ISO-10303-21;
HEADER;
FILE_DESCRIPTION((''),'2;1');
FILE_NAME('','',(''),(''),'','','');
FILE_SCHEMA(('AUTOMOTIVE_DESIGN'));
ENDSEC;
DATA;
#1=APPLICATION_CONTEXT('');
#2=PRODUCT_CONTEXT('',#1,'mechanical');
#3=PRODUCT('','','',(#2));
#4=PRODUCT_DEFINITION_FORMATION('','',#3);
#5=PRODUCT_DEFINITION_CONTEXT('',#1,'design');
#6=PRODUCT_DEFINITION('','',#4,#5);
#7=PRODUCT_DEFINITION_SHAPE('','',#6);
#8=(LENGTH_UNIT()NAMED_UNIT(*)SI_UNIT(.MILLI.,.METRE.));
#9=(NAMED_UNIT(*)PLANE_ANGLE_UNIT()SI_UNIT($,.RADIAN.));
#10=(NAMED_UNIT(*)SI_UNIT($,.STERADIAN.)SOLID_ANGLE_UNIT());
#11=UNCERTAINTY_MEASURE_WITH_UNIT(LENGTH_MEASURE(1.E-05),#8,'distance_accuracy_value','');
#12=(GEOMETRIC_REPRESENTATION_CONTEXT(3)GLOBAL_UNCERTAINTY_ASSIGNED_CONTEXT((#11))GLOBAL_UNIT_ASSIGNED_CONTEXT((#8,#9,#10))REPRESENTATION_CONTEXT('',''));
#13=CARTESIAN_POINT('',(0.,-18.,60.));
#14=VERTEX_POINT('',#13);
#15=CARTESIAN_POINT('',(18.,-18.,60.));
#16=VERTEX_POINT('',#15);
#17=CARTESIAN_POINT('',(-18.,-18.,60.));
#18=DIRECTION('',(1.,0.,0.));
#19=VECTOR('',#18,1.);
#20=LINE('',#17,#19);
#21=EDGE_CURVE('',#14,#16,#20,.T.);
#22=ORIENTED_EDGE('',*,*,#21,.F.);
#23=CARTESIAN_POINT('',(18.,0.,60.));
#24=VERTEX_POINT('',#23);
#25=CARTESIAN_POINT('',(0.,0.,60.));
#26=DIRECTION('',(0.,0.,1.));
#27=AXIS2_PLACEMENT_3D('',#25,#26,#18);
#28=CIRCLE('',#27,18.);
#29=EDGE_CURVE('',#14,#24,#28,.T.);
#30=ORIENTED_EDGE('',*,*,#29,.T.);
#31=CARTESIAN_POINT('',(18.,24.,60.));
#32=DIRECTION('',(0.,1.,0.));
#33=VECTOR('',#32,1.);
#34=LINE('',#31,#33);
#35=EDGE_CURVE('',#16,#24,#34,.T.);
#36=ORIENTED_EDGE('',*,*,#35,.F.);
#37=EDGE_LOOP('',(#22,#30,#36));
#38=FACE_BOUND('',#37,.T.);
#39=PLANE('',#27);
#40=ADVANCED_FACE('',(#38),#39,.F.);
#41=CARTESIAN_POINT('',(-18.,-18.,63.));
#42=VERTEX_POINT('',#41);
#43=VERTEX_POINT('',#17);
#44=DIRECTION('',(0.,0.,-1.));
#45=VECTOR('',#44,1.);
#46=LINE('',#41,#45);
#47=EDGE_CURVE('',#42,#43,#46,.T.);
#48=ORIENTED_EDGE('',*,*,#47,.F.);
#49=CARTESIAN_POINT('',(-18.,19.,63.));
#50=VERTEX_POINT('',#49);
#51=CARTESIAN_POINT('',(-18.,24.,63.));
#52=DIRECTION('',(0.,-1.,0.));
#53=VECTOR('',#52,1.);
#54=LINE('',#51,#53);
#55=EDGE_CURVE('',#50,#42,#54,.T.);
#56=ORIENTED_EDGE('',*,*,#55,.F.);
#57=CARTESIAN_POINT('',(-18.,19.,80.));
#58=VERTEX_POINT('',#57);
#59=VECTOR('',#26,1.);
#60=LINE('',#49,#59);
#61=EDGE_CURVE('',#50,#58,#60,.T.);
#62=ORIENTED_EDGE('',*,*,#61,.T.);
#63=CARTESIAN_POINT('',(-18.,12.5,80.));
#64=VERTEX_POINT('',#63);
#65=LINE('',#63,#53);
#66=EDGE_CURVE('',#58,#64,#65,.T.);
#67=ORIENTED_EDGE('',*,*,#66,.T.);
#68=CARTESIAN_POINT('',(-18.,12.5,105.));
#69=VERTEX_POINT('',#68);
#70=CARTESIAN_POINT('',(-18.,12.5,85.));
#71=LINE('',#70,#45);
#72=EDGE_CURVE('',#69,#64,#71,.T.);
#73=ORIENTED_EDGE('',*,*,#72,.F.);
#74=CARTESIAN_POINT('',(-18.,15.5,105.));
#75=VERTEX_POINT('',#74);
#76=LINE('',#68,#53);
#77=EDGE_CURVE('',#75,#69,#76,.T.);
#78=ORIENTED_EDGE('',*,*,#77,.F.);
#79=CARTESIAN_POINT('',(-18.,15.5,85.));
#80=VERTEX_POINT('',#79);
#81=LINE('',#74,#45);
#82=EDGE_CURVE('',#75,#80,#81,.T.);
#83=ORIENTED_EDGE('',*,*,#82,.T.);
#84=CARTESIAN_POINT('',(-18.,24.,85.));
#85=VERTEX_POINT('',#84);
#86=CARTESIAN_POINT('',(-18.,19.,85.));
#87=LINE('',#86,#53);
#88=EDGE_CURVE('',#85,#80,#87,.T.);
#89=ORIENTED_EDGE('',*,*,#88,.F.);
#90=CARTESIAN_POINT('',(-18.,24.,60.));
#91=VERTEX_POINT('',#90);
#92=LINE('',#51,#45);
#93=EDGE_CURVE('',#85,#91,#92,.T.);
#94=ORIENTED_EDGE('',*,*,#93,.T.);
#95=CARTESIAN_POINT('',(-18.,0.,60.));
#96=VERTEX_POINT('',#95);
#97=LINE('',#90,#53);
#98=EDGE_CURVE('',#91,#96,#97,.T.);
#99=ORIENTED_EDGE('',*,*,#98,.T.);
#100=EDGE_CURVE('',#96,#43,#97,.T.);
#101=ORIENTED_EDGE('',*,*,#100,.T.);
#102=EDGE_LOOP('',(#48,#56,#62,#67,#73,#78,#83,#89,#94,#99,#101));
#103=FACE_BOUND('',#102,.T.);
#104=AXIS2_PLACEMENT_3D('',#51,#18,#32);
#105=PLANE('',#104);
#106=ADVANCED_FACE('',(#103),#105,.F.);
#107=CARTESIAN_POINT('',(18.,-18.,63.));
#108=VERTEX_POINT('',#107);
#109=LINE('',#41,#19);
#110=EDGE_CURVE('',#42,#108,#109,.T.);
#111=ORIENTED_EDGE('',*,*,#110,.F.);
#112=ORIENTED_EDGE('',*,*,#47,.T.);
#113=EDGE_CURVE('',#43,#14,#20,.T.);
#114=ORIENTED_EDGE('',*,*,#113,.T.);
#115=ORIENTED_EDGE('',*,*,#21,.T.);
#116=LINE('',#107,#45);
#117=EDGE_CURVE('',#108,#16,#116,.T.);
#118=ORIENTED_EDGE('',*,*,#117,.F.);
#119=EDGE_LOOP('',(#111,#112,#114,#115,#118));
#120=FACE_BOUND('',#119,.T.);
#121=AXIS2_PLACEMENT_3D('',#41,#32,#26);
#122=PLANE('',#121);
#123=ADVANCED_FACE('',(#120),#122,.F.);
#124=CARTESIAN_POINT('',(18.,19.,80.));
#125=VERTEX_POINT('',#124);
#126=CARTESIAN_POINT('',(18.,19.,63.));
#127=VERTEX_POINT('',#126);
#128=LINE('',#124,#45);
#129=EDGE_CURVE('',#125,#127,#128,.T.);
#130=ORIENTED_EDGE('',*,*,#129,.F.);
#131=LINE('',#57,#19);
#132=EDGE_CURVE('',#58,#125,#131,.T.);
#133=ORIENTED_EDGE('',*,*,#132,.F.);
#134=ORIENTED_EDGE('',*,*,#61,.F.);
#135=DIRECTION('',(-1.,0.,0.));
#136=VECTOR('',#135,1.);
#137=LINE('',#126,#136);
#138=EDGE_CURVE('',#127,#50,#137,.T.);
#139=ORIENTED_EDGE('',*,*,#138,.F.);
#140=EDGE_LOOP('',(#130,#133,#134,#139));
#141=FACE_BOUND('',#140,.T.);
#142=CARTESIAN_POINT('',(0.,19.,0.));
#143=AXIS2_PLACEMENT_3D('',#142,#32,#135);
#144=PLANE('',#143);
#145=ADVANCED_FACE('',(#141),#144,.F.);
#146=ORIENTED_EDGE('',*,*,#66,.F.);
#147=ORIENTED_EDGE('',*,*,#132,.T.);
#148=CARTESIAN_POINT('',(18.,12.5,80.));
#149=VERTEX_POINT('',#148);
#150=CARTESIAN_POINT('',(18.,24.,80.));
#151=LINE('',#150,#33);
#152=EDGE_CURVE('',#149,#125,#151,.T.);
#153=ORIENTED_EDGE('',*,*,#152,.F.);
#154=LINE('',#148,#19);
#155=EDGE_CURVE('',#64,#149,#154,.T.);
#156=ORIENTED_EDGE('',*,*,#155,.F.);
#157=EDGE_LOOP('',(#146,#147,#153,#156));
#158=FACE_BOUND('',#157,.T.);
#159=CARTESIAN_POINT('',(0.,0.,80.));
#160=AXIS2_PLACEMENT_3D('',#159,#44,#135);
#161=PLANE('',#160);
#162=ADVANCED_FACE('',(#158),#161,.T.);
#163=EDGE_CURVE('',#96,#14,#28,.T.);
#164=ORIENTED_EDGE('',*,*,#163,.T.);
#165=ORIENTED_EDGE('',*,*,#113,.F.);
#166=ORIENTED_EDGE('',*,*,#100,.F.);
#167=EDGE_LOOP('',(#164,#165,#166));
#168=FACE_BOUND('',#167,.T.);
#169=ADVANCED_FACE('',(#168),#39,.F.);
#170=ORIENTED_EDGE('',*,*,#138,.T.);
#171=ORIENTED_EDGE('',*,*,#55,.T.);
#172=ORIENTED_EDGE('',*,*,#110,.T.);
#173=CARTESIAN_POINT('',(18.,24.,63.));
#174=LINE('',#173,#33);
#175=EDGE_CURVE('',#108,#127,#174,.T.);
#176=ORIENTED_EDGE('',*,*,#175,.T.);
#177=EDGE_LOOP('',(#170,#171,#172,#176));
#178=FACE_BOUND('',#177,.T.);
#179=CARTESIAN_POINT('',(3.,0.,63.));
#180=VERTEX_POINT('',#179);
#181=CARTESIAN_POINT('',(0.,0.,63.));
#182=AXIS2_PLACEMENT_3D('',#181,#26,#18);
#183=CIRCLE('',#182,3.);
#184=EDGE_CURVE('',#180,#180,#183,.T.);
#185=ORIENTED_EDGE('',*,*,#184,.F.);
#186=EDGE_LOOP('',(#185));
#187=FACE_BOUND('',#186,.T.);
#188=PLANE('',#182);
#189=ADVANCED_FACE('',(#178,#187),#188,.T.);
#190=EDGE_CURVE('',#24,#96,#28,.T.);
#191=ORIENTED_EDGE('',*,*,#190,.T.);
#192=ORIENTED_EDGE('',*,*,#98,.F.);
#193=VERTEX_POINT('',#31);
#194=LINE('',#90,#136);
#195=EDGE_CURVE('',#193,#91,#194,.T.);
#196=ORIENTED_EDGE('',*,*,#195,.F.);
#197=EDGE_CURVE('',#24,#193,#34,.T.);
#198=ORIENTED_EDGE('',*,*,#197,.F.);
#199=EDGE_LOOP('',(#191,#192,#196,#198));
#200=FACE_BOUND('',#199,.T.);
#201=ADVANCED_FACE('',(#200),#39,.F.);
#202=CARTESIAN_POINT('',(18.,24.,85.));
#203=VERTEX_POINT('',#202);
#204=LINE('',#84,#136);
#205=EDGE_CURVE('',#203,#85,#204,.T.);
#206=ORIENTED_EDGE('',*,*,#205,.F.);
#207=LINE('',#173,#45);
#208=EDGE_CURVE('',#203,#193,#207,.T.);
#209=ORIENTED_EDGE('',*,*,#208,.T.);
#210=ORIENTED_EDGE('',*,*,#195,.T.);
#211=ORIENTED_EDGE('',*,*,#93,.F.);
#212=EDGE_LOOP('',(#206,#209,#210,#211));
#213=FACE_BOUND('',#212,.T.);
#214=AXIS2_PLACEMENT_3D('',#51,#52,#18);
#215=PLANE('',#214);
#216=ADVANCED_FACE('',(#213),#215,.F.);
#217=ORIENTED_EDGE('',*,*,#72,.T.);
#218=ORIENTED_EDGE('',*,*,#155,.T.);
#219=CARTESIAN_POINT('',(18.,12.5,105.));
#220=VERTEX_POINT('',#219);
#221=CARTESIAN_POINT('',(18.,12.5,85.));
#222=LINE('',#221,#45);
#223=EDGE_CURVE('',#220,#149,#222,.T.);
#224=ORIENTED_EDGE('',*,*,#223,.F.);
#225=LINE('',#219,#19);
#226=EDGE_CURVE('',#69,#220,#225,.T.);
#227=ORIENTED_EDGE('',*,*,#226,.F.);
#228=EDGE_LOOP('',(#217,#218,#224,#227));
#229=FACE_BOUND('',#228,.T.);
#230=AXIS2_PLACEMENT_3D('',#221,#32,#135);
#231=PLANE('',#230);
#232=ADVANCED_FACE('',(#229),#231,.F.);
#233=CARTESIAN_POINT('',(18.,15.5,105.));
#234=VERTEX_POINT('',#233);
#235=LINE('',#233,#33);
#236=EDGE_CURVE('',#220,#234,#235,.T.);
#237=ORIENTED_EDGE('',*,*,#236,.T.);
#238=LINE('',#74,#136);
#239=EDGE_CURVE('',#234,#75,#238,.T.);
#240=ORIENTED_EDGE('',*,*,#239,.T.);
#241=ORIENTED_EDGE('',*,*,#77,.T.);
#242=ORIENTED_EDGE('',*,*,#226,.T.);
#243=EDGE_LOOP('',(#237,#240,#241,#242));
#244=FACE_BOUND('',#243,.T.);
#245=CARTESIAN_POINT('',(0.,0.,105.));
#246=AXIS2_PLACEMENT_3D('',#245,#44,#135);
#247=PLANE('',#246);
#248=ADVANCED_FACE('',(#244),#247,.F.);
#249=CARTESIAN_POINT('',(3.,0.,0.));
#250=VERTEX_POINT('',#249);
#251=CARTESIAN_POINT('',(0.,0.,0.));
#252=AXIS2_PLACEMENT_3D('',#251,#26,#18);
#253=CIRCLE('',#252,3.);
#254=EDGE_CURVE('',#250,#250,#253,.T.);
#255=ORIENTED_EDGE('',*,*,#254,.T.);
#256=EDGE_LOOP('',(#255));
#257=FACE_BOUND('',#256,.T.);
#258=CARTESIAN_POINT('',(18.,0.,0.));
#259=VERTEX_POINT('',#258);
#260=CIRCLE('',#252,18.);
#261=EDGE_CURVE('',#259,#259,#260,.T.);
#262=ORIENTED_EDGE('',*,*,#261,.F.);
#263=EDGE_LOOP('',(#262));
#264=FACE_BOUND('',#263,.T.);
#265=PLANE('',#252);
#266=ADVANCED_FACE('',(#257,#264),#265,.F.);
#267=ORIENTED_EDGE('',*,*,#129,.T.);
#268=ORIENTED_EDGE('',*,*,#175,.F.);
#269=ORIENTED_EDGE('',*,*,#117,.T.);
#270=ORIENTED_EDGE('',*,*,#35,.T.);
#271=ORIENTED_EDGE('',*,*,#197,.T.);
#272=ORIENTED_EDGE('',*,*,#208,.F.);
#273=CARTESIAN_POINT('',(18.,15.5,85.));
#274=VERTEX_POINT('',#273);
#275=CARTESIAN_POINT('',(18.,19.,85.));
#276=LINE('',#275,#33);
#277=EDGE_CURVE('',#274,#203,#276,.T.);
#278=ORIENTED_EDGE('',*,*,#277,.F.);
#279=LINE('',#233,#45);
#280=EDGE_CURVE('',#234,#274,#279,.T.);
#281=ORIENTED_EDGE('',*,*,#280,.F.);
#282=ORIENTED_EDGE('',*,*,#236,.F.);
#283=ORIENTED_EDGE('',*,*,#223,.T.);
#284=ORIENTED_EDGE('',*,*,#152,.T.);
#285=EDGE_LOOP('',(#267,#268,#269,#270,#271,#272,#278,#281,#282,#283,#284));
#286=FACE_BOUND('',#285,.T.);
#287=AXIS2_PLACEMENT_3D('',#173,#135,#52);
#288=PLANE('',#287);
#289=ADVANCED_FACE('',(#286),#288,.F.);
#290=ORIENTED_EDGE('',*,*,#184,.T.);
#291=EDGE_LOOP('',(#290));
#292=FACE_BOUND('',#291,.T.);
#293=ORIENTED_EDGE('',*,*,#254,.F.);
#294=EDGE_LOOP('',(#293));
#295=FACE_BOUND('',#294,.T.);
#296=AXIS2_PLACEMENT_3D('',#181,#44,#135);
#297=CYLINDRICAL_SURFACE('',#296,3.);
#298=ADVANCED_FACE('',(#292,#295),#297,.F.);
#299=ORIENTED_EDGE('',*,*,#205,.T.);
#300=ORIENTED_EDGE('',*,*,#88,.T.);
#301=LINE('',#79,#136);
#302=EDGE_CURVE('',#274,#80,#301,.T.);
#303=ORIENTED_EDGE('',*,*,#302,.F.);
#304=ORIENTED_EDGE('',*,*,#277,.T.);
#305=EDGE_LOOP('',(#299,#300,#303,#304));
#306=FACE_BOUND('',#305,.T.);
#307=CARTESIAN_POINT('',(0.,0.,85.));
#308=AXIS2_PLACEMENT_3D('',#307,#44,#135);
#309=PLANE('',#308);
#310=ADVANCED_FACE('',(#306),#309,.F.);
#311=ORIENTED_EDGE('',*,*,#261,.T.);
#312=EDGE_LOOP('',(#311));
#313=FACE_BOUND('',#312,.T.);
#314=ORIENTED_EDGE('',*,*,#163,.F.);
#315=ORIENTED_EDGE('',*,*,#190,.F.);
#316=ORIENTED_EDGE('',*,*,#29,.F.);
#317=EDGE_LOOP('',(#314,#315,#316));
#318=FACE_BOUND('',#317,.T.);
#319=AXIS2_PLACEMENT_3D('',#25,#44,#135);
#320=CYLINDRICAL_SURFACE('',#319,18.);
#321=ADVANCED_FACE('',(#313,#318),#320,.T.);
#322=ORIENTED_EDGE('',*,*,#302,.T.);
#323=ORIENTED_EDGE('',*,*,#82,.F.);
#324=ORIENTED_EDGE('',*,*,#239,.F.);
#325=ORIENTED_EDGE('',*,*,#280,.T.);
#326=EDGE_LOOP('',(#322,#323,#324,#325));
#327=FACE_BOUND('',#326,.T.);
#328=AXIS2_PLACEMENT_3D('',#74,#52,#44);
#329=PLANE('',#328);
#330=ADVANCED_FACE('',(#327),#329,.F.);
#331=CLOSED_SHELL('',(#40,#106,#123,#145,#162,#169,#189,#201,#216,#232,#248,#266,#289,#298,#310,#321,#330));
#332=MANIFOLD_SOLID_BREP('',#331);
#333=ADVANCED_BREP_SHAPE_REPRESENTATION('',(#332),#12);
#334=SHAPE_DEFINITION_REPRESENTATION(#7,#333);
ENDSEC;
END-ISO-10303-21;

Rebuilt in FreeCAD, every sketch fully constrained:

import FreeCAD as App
import Part
import Sketcher

V = App.Vector
Q = App.Units.Quantity

doc = App.newDocument("Part")
params = doc.addObject("Spreadsheet::Sheet", "Params")
for row, (alias, value) in enumerate([
    ("sketch1_diameter", "36 mm"),
    ("pad1_length", "60 mm"),
    ("sketch2_width", "36 mm"),
    ("sketch2_height", "42 mm"),
    ("pad2_length", "3 mm"),
    ("sketch3_diameter", "6 mm"),
    ("sketch4_width", "36 mm"),
    ("sketch4_height", "17 mm"),
    ("pad3_length", "5 mm"),
    ("sketch5_width", "36 mm"),
    ("sketch5_height", "11.5 mm"),
    ("pad4_length", "5 mm"),
    ("sketch6_width", "36 mm"),
    ("sketch6_height", "3 mm"),
    ("pad5_length", "20 mm"),
], start=1):
    params.set(f"A{row}", alias)
    params.set(f"B{row}", "=" + value)
    params.setAlias(f"B{row}", alias)

body = doc.addObject("PartDesign::Body", "Body")

sketch1 = doc.addObject("Sketcher::SketchObject", "Sketch")
body.addObject(sketch1)
sketch1.AttachmentSupport = (doc.XY_Plane, [""])
sketch1.MapMode = "FlatFace"
sketch1.addGeometry(Part.Circle(V(0, 0, 0), V(0, 0, 1), 18), False)
sketch1.addConstraint([
    Sketcher.Constraint("Coincident", 0, 3, -1, 1),
    Sketcher.Constraint("Diameter", 0, Q("36 mm")),
])
sketch1.setExpression("Constraints[1]", "Params.sketch1_diameter")
pad1 = doc.addObject("PartDesign::Pad", "Pad")
body.addObject(pad1)
pad1.Profile = sketch1
pad1.setExpression("Length", "Params.pad1_length")

sketch2 = doc.addObject("Sketcher::SketchObject", "Sketch001")
body.addObject(sketch2)
sketch2.AttachmentSupport = (doc.XY_Plane, [""])
sketch2.MapMode = "FlatFace"
sketch2.AttachmentOffset = App.Placement(V(0, 0, 60), App.Rotation())
sketch2.addGeometry([
    Part.LineSegment(V(-18, 24, 0), V(-18, -18, 0)),
    Part.LineSegment(V(-18, -18, 0), V(18, -18, 0)),
    Part.LineSegment(V(18, -18, 0), V(18, 24, 0)),
    Part.LineSegment(V(18, 24, 0), V(-18, 24, 0)),
], False)
sketch2.addConstraint([
    Sketcher.Constraint("Coincident", 0, 2, 1, 1),
    Sketcher.Constraint("Coincident", 1, 2, 2, 1),
    Sketcher.Constraint("Coincident", 2, 2, 3, 1),
    Sketcher.Constraint("Coincident", 3, 2, 0, 1),
    Sketcher.Constraint("Vertical", 0),
    Sketcher.Constraint("Horizontal", 1),
    Sketcher.Constraint("Vertical", 2),
    Sketcher.Constraint("Horizontal", 3),
    Sketcher.Constraint("DistanceX", 1, 1, 1, 2, Q("36 mm")),
    Sketcher.Constraint("DistanceY", 0, 2, 0, 1, Q("42 mm")),
    Sketcher.Constraint("DistanceX", 0, 2, -1, 1, Q("18 mm")),
    Sketcher.Constraint("DistanceY", 0, 2, -1, 1, Q("18 mm")),
])
sketch2.setExpression("Constraints[8]", "Params.sketch2_width")
sketch2.setExpression("Constraints[9]", "Params.sketch2_height")
pad2 = doc.addObject("PartDesign::Pad", "Pad001")
body.addObject(pad2)
pad2.Profile = sketch2
pad2.setExpression("Length", "Params.pad2_length")

sketch3 = doc.addObject("Sketcher::SketchObject", "Sketch002")
body.addObject(sketch3)
sketch3.AttachmentSupport = (doc.XY_Plane, [""])
sketch3.MapMode = "FlatFace"
sketch3.AttachmentOffset = App.Placement(V(0, 0, 60), App.Rotation())
sketch3.addGeometry(Part.Circle(V(0, 0, 0), V(0, 0, 1), 3), False)
sketch3.addConstraint([
    Sketcher.Constraint("Coincident", 0, 3, -1, 1),
    Sketcher.Constraint("Diameter", 0, Q("6 mm")),
])
sketch3.setExpression("Constraints[1]", "Params.sketch3_diameter")
pocket1 = doc.addObject("PartDesign::Pocket", "Pocket")
body.addObject(pocket1)
pocket1.Profile = sketch3
pocket1.Type = "ThroughAll"
pocket1.Midplane = True

sketch4 = doc.addObject("Sketcher::SketchObject", "Sketch003")
body.addObject(sketch4)
sketch4.AttachmentSupport = (doc.XZ_Plane, [""])
sketch4.MapMode = "FlatFace"
sketch4.AttachmentOffset = App.Placement(V(0, 0, -24), App.Rotation())
sketch4.addGeometry([
    Part.LineSegment(V(-18, 63, 0), V(-18, 80, 0)),
    Part.LineSegment(V(-18, 80, 0), V(18, 80, 0)),
    Part.LineSegment(V(18, 80, 0), V(18, 63, 0)),
    Part.LineSegment(V(18, 63, 0), V(-18, 63, 0)),
], False)
sketch4.addConstraint([
    Sketcher.Constraint("Coincident", 0, 2, 1, 1),
    Sketcher.Constraint("Coincident", 1, 2, 2, 1),
    Sketcher.Constraint("Coincident", 2, 2, 3, 1),
    Sketcher.Constraint("Coincident", 3, 2, 0, 1),
    Sketcher.Constraint("Vertical", 0),
    Sketcher.Constraint("Horizontal", 1),
    Sketcher.Constraint("Vertical", 2),
    Sketcher.Constraint("Horizontal", 3),
    Sketcher.Constraint("DistanceX", 1, 1, 1, 2, Q("36 mm")),
    Sketcher.Constraint("DistanceY", 0, 1, 0, 2, Q("17 mm")),
    Sketcher.Constraint("DistanceX", 0, 2, -1, 1, Q("18 mm")),
    Sketcher.Constraint("DistanceY", -1, 1, 0, 2, Q("80 mm")),
])
sketch4.setExpression("Constraints[8]", "Params.sketch4_width")
sketch4.setExpression("Constraints[9]", "Params.sketch4_height")
pad3 = doc.addObject("PartDesign::Pad", "Pad002")
body.addObject(pad3)
pad3.Profile = sketch4
pad3.setExpression("Length", "Params.pad3_length")

sketch5 = doc.addObject("Sketcher::SketchObject", "Sketch004")
body.addObject(sketch5)
sketch5.AttachmentSupport = (doc.XY_Plane, [""])
sketch5.MapMode = "FlatFace"
sketch5.AttachmentOffset = App.Placement(V(0, 0, 80), App.Rotation())
sketch5.addGeometry([
    Part.LineSegment(V(18, 12, 0), V(18, 24, 0)),
    Part.LineSegment(V(18, 24, 0), V(-18, 24, 0)),
    Part.LineSegment(V(-18, 24, 0), V(-18, 12, 0)),
    Part.LineSegment(V(-18, 12, 0), V(18, 12, 0)),
], False)
sketch5.addConstraint([
    Sketcher.Constraint("Coincident", 0, 2, 1, 1),
    Sketcher.Constraint("Coincident", 1, 2, 2, 1),
    Sketcher.Constraint("Coincident", 2, 2, 3, 1),
    Sketcher.Constraint("Coincident", 3, 2, 0, 1),
    Sketcher.Constraint("Vertical", 0),
    Sketcher.Constraint("Horizontal", 1),
    Sketcher.Constraint("Vertical", 2),
    Sketcher.Constraint("Horizontal", 3),
    Sketcher.Constraint("DistanceX", 1, 2, 1, 1, Q("36 mm")),
    Sketcher.Constraint("DistanceY", 0, 1, 0, 2, Q("11.5 mm")),
    Sketcher.Constraint("DistanceX", -1, 1, 0, 2, Q("18 mm")),
    Sketcher.Constraint("DistanceY", -1, 1, 0, 2, Q("24 mm")),
])
sketch5.setExpression("Constraints[8]", "Params.sketch5_width")
sketch5.setExpression("Constraints[9]", "Params.sketch5_height")
pad4 = doc.addObject("PartDesign::Pad", "Pad003")
body.addObject(pad4)
pad4.Profile = sketch5
pad4.setExpression("Length", "Params.pad4_length")

sketch6 = doc.addObject("Sketcher::SketchObject", "Sketch005")
body.addObject(sketch6)
sketch6.AttachmentSupport = (doc.XY_Plane, [""])
sketch6.MapMode = "FlatFace"
sketch6.AttachmentOffset = App.Placement(V(0, 0, 85), App.Rotation())
sketch6.addGeometry([
    Part.LineSegment(V(-18, 15.5, 0), V(-18, 12.5, 0)),
    Part.LineSegment(V(-18, 12.5, 0), V(18, 12.5, 0)),
    Part.LineSegment(V(18, 12.5, 0), V(18, 15.5, 0)),
    Part.LineSegment(V(18, 15.5, 0), V(-18, 15.5, 0)),
], False)
sketch6.addConstraint([
    Sketcher.Constraint("Coincident", 0, 2, 1, 1),
    Sketcher.Constraint("Coincident", 1, 2, 2, 1),
    Sketcher.Constraint("Coincident", 2, 2, 3, 1),
    Sketcher.Constraint("Coincident", 3, 2, 0, 1),
    Sketcher.Constraint("Vertical", 0),
    Sketcher.Constraint("Horizontal", 1),
    Sketcher.Constraint("Vertical", 2),
    Sketcher.Constraint("Horizontal", 3),
    Sketcher.Constraint("DistanceX", 1, 1, 1, 2, Q("36 mm")),
    Sketcher.Constraint("DistanceY", 0, 2, 0, 1, Q("3 mm")),
    Sketcher.Constraint("DistanceX", 0, 2, -1, 1, Q("18 mm")),
    Sketcher.Constraint("DistanceY", -1, 1, 0, 2, Q("12.5 mm")),
])
sketch6.setExpression("Constraints[8]", "Params.sketch6_width")
sketch6.setExpression("Constraints[9]", "Params.sketch6_height")
pad5 = doc.addObject("PartDesign::Pad", "Pad004")
body.addObject(pad5)
pad5.Profile = sketch6
pad5.setExpression("Length", "Params.pad5_length")

doc.recompute()
